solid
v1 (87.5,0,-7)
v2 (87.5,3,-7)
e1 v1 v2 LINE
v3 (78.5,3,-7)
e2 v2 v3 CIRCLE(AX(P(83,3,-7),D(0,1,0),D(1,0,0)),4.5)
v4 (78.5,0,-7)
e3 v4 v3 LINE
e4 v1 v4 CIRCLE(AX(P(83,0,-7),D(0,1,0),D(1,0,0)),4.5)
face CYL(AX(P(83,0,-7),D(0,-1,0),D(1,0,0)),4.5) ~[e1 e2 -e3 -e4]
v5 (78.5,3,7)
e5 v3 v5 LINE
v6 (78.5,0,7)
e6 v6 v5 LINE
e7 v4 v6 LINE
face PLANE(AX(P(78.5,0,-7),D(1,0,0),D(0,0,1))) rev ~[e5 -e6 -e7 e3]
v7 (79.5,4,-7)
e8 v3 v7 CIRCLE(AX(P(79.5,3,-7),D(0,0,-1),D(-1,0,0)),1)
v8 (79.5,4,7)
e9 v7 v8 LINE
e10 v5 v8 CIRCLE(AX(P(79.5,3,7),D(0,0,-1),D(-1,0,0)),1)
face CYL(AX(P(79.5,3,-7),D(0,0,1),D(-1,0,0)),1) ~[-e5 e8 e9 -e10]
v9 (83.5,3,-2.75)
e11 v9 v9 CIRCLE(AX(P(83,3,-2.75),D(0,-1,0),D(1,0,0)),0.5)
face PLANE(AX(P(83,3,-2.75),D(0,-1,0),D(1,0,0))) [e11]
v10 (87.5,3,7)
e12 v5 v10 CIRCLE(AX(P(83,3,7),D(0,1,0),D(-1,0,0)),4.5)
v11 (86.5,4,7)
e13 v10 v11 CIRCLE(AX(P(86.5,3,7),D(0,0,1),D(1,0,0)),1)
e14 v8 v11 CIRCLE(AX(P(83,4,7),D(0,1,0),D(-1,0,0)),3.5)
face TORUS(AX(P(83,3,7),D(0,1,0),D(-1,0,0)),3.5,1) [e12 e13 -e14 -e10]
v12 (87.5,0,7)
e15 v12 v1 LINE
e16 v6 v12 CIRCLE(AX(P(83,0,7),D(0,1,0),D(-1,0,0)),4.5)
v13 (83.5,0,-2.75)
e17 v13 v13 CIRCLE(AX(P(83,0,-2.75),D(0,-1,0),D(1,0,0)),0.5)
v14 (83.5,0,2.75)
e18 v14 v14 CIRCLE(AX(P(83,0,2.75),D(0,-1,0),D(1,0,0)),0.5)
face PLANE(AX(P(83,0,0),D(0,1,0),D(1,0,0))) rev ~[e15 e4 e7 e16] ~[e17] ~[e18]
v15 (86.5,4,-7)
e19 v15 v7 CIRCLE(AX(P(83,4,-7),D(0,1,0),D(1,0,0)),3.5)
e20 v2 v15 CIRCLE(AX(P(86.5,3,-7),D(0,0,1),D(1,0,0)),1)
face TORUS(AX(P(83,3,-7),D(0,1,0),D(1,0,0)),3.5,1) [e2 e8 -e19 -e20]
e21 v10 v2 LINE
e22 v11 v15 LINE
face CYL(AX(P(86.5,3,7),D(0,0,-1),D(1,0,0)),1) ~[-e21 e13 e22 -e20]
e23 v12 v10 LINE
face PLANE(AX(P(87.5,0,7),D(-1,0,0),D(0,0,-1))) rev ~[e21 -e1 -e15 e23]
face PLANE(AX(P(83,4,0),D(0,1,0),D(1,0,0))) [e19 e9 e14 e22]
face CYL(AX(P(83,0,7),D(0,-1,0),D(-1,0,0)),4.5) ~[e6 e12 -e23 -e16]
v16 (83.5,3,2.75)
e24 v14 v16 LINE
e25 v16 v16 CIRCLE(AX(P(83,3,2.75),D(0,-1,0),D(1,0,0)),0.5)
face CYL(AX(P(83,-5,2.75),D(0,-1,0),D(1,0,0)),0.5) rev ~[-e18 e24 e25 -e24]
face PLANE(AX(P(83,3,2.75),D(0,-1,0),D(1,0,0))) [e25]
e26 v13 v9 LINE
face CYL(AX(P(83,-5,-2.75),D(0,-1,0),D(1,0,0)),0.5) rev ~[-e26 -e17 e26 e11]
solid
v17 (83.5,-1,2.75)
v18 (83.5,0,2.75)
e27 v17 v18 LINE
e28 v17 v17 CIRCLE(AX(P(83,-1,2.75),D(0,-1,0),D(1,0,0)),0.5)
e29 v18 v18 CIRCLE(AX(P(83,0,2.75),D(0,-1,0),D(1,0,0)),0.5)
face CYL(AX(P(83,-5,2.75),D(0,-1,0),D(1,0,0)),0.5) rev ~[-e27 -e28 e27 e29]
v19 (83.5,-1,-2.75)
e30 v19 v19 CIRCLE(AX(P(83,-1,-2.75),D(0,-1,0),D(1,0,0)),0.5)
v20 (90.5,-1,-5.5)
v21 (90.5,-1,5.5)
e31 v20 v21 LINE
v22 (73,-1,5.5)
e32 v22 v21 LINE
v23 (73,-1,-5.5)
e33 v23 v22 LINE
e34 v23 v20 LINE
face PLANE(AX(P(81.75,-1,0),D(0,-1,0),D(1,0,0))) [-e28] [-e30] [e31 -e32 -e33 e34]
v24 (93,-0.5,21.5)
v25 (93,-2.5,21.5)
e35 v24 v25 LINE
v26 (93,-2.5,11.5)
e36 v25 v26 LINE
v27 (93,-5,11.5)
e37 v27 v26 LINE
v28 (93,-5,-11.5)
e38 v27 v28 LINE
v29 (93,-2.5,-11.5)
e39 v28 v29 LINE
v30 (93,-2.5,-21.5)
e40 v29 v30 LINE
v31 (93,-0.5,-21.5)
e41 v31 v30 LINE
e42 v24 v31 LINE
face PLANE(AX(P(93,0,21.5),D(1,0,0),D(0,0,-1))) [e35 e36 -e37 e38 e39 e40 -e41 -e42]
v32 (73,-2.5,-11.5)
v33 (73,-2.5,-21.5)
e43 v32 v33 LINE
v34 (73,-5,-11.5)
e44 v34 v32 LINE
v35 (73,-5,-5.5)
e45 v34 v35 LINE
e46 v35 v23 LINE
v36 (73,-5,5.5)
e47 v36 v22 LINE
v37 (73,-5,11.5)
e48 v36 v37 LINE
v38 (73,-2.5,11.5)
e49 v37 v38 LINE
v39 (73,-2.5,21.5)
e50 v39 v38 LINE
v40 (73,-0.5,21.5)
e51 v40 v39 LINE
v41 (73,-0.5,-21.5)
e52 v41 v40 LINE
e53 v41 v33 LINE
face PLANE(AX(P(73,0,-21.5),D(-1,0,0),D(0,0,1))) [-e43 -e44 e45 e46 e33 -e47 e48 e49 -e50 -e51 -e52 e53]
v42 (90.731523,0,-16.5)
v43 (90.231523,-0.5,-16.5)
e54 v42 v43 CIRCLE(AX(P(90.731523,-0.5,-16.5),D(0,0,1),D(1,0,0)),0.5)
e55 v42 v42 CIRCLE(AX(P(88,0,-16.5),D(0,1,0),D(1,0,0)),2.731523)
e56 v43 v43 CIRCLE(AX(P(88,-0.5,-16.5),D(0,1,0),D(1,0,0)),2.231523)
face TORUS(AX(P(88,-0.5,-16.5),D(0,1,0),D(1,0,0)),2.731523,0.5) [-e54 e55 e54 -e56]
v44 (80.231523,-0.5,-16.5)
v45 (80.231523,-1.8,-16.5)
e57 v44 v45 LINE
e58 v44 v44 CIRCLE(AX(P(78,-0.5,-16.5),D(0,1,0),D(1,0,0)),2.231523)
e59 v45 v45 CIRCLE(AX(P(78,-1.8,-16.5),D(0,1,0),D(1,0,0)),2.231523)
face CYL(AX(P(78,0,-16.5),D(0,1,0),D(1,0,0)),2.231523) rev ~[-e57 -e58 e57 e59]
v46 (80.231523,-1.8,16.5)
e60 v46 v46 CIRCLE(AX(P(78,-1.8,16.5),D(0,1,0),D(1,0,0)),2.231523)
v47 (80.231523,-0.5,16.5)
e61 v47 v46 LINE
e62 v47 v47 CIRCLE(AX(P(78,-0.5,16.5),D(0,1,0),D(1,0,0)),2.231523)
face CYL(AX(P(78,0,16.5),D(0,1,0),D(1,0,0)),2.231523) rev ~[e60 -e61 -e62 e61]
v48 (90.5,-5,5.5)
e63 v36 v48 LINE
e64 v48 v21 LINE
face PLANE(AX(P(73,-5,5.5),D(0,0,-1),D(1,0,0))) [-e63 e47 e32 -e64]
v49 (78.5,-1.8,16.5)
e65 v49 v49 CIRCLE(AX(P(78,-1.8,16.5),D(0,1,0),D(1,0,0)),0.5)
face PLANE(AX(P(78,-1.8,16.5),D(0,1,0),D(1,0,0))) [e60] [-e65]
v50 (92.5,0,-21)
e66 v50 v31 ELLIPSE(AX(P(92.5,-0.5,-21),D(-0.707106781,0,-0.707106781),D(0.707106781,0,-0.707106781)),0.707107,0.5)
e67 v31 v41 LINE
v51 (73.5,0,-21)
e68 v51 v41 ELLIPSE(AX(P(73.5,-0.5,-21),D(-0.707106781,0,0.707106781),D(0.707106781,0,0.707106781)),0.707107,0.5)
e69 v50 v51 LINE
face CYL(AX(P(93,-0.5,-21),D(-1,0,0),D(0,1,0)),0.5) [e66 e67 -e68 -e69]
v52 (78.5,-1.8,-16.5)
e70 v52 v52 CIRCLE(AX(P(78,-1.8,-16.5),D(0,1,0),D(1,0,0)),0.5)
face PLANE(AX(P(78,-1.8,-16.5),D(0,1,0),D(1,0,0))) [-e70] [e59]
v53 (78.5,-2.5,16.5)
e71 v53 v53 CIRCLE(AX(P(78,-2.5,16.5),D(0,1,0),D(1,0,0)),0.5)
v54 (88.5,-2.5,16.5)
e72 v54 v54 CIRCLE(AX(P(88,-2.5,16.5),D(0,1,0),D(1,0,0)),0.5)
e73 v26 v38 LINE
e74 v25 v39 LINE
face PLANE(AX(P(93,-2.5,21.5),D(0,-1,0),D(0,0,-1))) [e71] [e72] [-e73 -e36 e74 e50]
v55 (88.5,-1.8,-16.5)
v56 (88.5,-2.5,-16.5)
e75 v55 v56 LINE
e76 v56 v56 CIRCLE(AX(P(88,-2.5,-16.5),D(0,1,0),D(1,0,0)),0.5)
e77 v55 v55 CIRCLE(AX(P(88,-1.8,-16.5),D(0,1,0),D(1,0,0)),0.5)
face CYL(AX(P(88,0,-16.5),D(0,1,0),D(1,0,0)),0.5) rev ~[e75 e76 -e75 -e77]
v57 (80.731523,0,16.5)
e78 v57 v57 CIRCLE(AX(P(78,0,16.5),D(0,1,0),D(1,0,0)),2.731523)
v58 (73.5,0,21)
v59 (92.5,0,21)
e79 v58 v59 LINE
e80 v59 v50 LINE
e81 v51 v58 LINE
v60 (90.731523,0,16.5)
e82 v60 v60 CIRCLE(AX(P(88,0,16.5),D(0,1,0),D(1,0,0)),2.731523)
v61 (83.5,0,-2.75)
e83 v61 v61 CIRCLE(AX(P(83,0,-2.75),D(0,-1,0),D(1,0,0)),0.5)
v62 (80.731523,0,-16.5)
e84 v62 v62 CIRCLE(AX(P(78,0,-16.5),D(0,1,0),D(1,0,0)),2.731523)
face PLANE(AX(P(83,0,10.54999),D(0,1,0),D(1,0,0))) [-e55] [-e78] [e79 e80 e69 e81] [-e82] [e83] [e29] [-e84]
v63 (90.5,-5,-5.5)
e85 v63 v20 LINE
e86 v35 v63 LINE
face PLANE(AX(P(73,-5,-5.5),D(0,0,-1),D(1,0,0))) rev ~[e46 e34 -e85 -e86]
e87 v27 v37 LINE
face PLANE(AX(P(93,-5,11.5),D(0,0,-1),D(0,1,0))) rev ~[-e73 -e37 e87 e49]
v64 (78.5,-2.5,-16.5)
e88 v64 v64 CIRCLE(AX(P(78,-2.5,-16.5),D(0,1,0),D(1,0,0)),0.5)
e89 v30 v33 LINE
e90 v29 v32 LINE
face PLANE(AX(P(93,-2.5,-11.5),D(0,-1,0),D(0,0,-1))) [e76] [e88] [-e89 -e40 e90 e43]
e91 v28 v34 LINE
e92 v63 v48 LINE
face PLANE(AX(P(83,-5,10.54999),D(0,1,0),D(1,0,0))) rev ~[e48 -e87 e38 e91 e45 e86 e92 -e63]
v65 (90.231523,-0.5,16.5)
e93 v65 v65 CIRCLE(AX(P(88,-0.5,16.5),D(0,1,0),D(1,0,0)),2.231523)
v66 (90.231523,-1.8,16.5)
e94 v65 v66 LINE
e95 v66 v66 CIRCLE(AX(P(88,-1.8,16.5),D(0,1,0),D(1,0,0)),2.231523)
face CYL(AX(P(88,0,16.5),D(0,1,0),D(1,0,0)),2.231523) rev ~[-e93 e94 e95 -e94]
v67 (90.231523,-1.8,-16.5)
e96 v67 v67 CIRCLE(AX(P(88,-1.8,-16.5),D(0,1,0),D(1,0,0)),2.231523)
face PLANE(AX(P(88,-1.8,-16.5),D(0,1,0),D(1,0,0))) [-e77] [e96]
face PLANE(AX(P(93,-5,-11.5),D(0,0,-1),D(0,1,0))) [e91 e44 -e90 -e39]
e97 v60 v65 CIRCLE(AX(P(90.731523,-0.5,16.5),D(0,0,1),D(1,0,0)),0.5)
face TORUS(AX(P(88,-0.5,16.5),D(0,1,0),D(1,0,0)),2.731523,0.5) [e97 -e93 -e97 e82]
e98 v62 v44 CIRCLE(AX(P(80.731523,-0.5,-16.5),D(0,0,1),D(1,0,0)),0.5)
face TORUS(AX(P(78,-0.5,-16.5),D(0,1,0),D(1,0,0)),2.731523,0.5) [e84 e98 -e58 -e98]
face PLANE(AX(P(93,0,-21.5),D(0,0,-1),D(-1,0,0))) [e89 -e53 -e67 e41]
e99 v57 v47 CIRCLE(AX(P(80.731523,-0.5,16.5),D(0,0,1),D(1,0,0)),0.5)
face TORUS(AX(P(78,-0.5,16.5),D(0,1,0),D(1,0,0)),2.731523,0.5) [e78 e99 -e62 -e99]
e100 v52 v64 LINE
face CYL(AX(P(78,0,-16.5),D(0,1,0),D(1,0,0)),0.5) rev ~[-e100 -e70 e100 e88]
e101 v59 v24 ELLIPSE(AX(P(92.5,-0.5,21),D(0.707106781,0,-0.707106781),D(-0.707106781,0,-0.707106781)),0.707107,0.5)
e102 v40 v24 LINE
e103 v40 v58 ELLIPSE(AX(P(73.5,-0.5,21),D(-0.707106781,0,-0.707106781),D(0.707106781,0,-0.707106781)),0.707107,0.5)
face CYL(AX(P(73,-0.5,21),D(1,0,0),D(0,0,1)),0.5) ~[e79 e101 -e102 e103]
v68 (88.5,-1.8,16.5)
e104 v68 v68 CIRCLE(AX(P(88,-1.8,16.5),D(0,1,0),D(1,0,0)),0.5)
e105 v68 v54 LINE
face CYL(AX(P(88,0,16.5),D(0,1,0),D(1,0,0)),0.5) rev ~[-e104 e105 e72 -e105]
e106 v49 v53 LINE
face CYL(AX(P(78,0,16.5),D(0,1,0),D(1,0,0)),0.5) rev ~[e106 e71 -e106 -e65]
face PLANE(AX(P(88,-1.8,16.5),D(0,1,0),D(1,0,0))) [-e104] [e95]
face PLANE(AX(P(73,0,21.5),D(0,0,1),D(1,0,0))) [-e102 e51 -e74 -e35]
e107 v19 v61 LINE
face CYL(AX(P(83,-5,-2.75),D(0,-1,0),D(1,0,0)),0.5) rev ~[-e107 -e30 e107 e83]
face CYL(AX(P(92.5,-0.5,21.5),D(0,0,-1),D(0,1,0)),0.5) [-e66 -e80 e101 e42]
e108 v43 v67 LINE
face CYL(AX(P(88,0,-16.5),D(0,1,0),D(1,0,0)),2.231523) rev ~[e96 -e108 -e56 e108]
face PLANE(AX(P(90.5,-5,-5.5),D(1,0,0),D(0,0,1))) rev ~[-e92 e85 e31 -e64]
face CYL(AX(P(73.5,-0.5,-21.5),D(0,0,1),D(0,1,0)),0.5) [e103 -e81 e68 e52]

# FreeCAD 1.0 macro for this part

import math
import FreeCAD as App
import Part
import Sketcher

V = App.Vector


def edges_at(feature, points):
    """Names of the edges that pass closest to the given points."""
    edges = feature.Shape.Edges
    near = lambda p: min(range(len(edges)), key=lambda i: edges[i].distToShape(Part.Vertex(*p))[0])
    return sorted({f"Edge{near(p) + 1}" for p in points})

doc = App.newDocument("Part")
body = doc.addObject("PartDesign::Body", "Body")

# Sketch on XZ plane
sketch1 = body.newObject("Sketcher::SketchObject", "Sketch")
sketch1.AttachmentSupport = (doc.getObject("XZ_Plane"), [""])
sketch1.MapMode = "FlatFace"
sketch1.addGeometry([
    Part.LineSegment(V(78.5, -7, 0), V(78.5, 7, 0)),
    Part.ArcOfCircle(Part.Circle(V(83, 7, 0), V(0, 0, 1), 4.5), math.radians(0), math.radians(180)),
    Part.LineSegment(V(87.5, 7, 0), V(87.5, -7, 0)),
    Part.ArcOfCircle(Part.Circle(V(83, -7, 0), V(0, 0, 1), 4.5), math.radians(180), math.radians(360)),
], False)
sketch1.addConstraint([
    Sketcher.Constraint("Tangent", 0, 2, 1, 2),
    Sketcher.Constraint("Tangent", 1, 1, 2, 1),
    Sketcher.Constraint("Tangent", 2, 2, 3, 2),
    Sketcher.Constraint("Tangent", 3, 1, 0, 1),
    Sketcher.Constraint("Vertical", 0),
    Sketcher.Constraint("Vertical", 2),
    Sketcher.Constraint("Radius", 1, 4.5),
    Sketcher.Constraint("DistanceY", 0, 1, 0, 2, 14.0),
    Sketcher.Constraint("DistanceX", -1, 1, 1, 3, 83.0),
    Sketcher.Constraint("DistanceY", -1, 1, 1, 3, 7.0),
])
pad1 = body.newObject("PartDesign::Pad", "Pad")
pad1.Profile = sketch1
pad1.Length = 4
pad1.Reversed = True
doc.recompute()

fillet = body.newObject("PartDesign::Fillet", "Fillet")
fillet.Base = (pad1, edges_at(pad1, [
    (78.5, 4, 0),
    (83, 4, 11.5),
    (87.5, 4, 0),
    (83, 4, -11.5),
]))
fillet.Radius = 1
body2 = doc.addObject("PartDesign::Body", "Body001")

# Sketch on XZ plane
sketch2 = body2.newObject("Sketcher::SketchObject", "Sketch001")
sketch2.AttachmentSupport = (doc.getObject("XZ_Plane001"), [""])
sketch2.MapMode = "FlatFace"
sketch2.addGeometry([
    Part.LineSegment(V(73, 22, 0), V(93, 22, 0)),
    Part.LineSegment(V(93, 22, 0), V(93, -22, 0)),
    Part.LineSegment(V(93, -22, 0), V(73, -22, 0)),
    Part.LineSegment(V(73, -22, 0), V(73, 22, 0)),
], False)
sketch2.addConstraint([
    Sketcher.Constraint("Coincident", 0, 2, 1, 1),
    Sketcher.Constraint("Coincident", 1, 2, 2, 1),
    Sketcher.Constraint("Coincident", 2, 2, 3, 1),
    Sketcher.Constraint("Coincident", 3, 2, 0, 1),
    Sketcher.Constraint("Horizontal", 0),
    Sketcher.Constraint("Vertical", 1),
    Sketcher.Constraint("Horizontal", 2),
    Sketcher.Constraint("Vertical", 3),
    Sketcher.Constraint("DistanceX", 0, 1, 0, 2, 20.0),
    Sketcher.Constraint("DistanceY", 1, 2, 1, 1, 43.0),
    Sketcher.Constraint("DistanceX", -1, 1, 0, 2, 93.0),
    Sketcher.Constraint("DistanceY", -1, 1, 0, 2, 21.5),
])
pad2 = body2.newObject("PartDesign::Pad", "Pad001")
pad2.Profile = sketch2
pad2.Length = 5

# Sketch on YZ plane
sketch3 = body2.newObject("Sketcher::SketchObject", "Sketch002")
sketch3.AttachmentSupport = (doc.getObject("YZ_Plane001"), [""])
sketch3.MapMode = "FlatFace"
sketch3.AttachmentOffset = App.Placement(V(0, 0, 93), App.Rotation())
sketch3.addGeometry([
    Part.LineSegment(V(-2.5, -11.5, 0), V(-5, -11.5, 0)),  # 0
    Part.LineSegment(V(-5, -11.5, 0), V(-5, -21.5, 0)),  # 1
    Part.LineSegment(V(-5, -21.5, 0), V(-2.5, -21.5, 0)),  # 2
    Part.LineSegment(V(-2.5, -21.5, 0), V(-2.5, -11.5, 0)),  # 3
    Part.LineSegment(V(-2.5, 21.5, 0), V(-5, 21.5, 0)),  # 4
    Part.LineSegment(V(-5, 21.5, 0), V(-5, 11.5, 0)),  # 5
    Part.LineSegment(V(-5, 11.5, 0), V(-2.5, 11.5, 0)),  # 6
    Part.LineSegment(V(-2.5, 11.5, 0), V(-2.5, 21.5, 0)),  # 7
], False)
sketch3.addConstraint([
    Sketcher.Constraint("Coincident", 0, 2, 1, 1),
    Sketcher.Constraint("Coincident", 1, 2, 2, 1),
    Sketcher.Constraint("Coincident", 2, 2, 3, 1),
    Sketcher.Constraint("Coincident", 3, 2, 0, 1),
    Sketcher.Constraint("Coincident", 4, 2, 5, 1),
    Sketcher.Constraint("Coincident", 5, 2, 6, 1),
    Sketcher.Constraint("Coincident", 6, 2, 7, 1),
    Sketcher.Constraint("Coincident", 7, 2, 4, 1),
    Sketcher.Constraint("Horizontal", 0),
    Sketcher.Constraint("Vertical", 1),
    Sketcher.Constraint("Horizontal", 2),
    Sketcher.Constraint("Vertical", 3),
    Sketcher.Constraint("Horizontal", 4),
    Sketcher.Constraint("Vertical", 5),
    Sketcher.Constraint("Horizontal", 6),
    Sketcher.Constraint("Vertical", 7),
    Sketcher.Constraint("Symmetric", 1, 2, 4, 2, -1),
    Sketcher.Constraint("Symmetric", 3, 2, 6, 2, -1),
    Sketcher.Constraint("DistanceY", 1, 2, 1, 1, 10.0),
    Sketcher.Constraint("DistanceX", 0, 2, 0, 1, 2.5),
    Sketcher.Constraint("DistanceX", 0, 2, -1, 1, 5.0),
    Sketcher.Constraint("DistanceY", 0, 2, 4, 2, 33.0),
])
pocket1 = body2.newObject("PartDesign::Pocket", "Pocket")
pocket1.Profile = sketch3
pocket1.Length = 20

# Sketch on XZ plane
sketch4 = body2.newObject("Sketcher::SketchObject", "Sketch003")
sketch4.AttachmentSupport = (doc.getObject("XZ_Plane001"), [""])
sketch4.MapMode = "FlatFace"
sketch4.addGeometry([
    Part.Circle(V(78, -16.5, 0), V(0, 0, 1), 2.2),  # 0
    Part.Circle(V(78, -16.5, 0), V(0, 0, 1), 0.5),  # 1
    Part.Circle(V(88, -16.5, 0), V(0, 0, 1), 2.2),  # 2
    Part.Circle(V(88, -16.5, 0), V(0, 0, 1), 0.5),  # 3
    Part.Circle(V(88, 16.5, 0), V(0, 0, 1), 2.2),  # 4
    Part.Circle(V(88, 16.5, 0), V(0, 0, 1), 0.5),  # 5
    Part.Circle(V(78, 16.5, 0), V(0, 0, 1), 2.2),  # 6
    Part.Circle(V(78, 16.5, 0), V(0, 0, 1), 0.5),  # 7
], False)
sketch4.addConstraint([
    Sketcher.Constraint("Coincident", 1, 3, 0, 3),
    Sketcher.Constraint("Coincident", 3, 3, 2, 3),
    Sketcher.Constraint("Coincident", 5, 3, 4, 3),
    Sketcher.Constraint("Coincident", 7, 3, 6, 3),
    Sketcher.Constraint("Equal", 0, 2),
    Sketcher.Constraint("Equal", 1, 3),
    Sketcher.Constraint("Equal", 2, 4),
    Sketcher.Constraint("Equal", 3, 5),
    Sketcher.Constraint("Equal", 4, 6),
    Sketcher.Constraint("Equal", 5, 7),
    Sketcher.Constraint("Symmetric", 2, 3, 4, 3, -1),
    Sketcher.Constraint("Symmetric", 0, 3, 6, 3, -1),
    Sketcher.Constraint("Horizontal", 1, 3, 2, 3),
    Sketcher.Constraint("Diameter", 1, 1.0),
    Sketcher.Constraint("DistanceX", -1, 1, 0, 3, 78.0),
    Sketcher.Constraint("DistanceX", -1, 1, 2, 3, 88.0),
    Sketcher.Constraint("DistanceY", 2, 3, 4, 3, 33.0),
    Sketcher.Constraint("Diameter", 0, 4.463046),
])
pocket2 = body2.newObject("PartDesign::Pocket", "Pocket001")
pocket2.Profile = sketch4
pocket2.Length = 1.8
pocket2.Reversed = True

# Sketch on XZ plane
sketch5 = body2.newObject("Sketcher::SketchObject", "Sketch004")
sketch5.AttachmentSupport = (doc.getObject("XZ_Plane001"), [""])
sketch5.MapMode = "FlatFace"
sketch5.addGeometry([
    Part.Circle(V(88, -16.5, 0), V(0, 0, 1), 0.5),
    Part.Circle(V(78, 16.5, 0), V(0, 0, 1), 0.5),
    Part.Circle(V(88, 16.5, 0), V(0, 0, 1), 0.5),
    Part.Circle(V(78, -16.5, 0), V(0, 0, 1), 0.5),
], False)
sketch5.addConstraint([
    Sketcher.Constraint("Equal", 0, 1),
    Sketcher.Constraint("Equal", 1, 2),
    Sketcher.Constraint("Equal", 2, 3),
    Sketcher.Constraint("Symmetric", 0, 3, 2, 3, -1),
    Sketcher.Constraint("Symmetric", 1, 3, 3, 3, -1),
    Sketcher.Constraint("Horizontal", 1, 3, 2, 3),
    Sketcher.Constraint("Diameter", 0, 1.0),
    Sketcher.Constraint("DistanceX", -1, 1, 0, 3, 88.0),
    Sketcher.Constraint("DistanceX", -1, 1, 1, 3, 78.0),
    Sketcher.Constraint("DistanceY", 0, 3, 1, 3, 33.0),
])
pocket3 = body2.newObject("PartDesign::Pocket", "Pocket002")
pocket3.Profile = sketch5
pocket3.Length = 2.5
pocket3.Reversed = True
doc.recompute()

fillet2 = body2.newObject("PartDesign::Fillet", "Fillet001")
fillet2.Base = (pocket3, edges_at(pocket3, [
    (75.768, 0, 16.5),
    (85.768, 0, 16.5),
    (85.768, 0, -16.5),
    (75.768, 0, -16.5),
    (93, 0, 0),
    (83, 0, 21.5),
    (73, 0, 0),
    (83, 0, -21.5),
]))
fillet2.Radius = 0.5

# Sketch on XZ plane
sketch6 = body2.newObject("Sketcher::SketchObject", "Sketch005")
sketch6.AttachmentSupport = (doc.getObject("XZ_Plane001"), [""])
sketch6.MapMode = "FlatFace"
sketch6.AttachmentOffset = App.Placement(V(0, 0, 5), App.Rotation())
sketch6.addGeometry([
    Part.LineSegment(V(73, 6, 0), V(73, -6, 0)),
    Part.LineSegment(V(73, -6, 0), V(90, -6, 0)),
    Part.LineSegment(V(90, -6, 0), V(90, 6, 0)),
    Part.LineSegment(V(90, 6, 0), V(73, 6, 0)),
], False)
sketch6.addConstraint([
    Sketcher.Constraint("Coincident", 0, 2, 1, 1),
    Sketcher.Constraint("Coincident", 1, 2, 2, 1),
    Sketcher.Constraint("Coincident", 2, 2, 3, 1),
    Sketcher.Constraint("Coincident", 3, 2, 0, 1),
    Sketcher.Constraint("Vertical", 0),
    Sketcher.Constraint("Horizontal", 1),
    Sketcher.Constraint("Vertical", 2),
    Sketcher.Constraint("Horizontal", 3),
    Sketcher.Constraint("DistanceY", 0, 2, 0, 1, 11.0),
    Sketcher.Constraint("DistanceX", 1, 1, 1, 2, 17.5),
    Sketcher.Constraint("DistanceX", -1, 1, 0, 2, 73.0),
    Sketcher.Constraint("DistanceY", 0, 2, -1, 1, 5.5),
])
pocket4 = body2.newObject("PartDesign::Pocket", "Pocket003")
pocket4.Profile = sketch6
pocket4.Length = 4
body3 = doc.addObject("PartDesign::Body", "Body002")
body3.AllowCompound = True

# Sketch on XZ plane
sketch7 = body3.newObject("Sketcher::SketchObject", "Sketch006")
sketch7.AttachmentSupport = (doc.getObject("XZ_Plane002"), [""])
sketch7.MapMode = "FlatFace"
sketch7.AttachmentOffset = App.Placement(V(0, 0, 5), App.Rotation())
sketch7.addGeometry([
    Part.Circle(V(83, -2.8, 0), V(0, 0, 1), 0.5),
    Part.Circle(V(83, 2.8, 0), V(0, 0, 1), 0.5),
], False)
sketch7.addConstraint([
    Sketcher.Constraint("Equal", 0, 1),
    Sketcher.Constraint("Symmetric", 0, 3, 1, 3, -1),
    Sketcher.Constraint("Diameter", 0, 1.0),
    Sketcher.Constraint("DistanceX", -1, 1, 0, 3, 83.0),
    Sketcher.Constraint("DistanceY", 0, 3, 1, 3, 5.5),
])
pad3 = body3.newObject("PartDesign::Pad", "Pad002")
pad3.Profile = sketch7
pad3.Length = 8
pad3.Reversed = True
doc.recompute()

body4 = doc.addObject("PartDesign::Body", "Body003")
body4.BaseFeature = body3
boolean = body.newObject("PartDesign::Boolean", "Boolean")
boolean.Type = "Cut"
boolean.addObjects([body4])
doc.recompute()

boolean2 = body2.newObject("PartDesign::Boolean", "Boolean001")
boolean2.Type = "Cut"
boolean2.addObjects([body3])

doc.recompute()
